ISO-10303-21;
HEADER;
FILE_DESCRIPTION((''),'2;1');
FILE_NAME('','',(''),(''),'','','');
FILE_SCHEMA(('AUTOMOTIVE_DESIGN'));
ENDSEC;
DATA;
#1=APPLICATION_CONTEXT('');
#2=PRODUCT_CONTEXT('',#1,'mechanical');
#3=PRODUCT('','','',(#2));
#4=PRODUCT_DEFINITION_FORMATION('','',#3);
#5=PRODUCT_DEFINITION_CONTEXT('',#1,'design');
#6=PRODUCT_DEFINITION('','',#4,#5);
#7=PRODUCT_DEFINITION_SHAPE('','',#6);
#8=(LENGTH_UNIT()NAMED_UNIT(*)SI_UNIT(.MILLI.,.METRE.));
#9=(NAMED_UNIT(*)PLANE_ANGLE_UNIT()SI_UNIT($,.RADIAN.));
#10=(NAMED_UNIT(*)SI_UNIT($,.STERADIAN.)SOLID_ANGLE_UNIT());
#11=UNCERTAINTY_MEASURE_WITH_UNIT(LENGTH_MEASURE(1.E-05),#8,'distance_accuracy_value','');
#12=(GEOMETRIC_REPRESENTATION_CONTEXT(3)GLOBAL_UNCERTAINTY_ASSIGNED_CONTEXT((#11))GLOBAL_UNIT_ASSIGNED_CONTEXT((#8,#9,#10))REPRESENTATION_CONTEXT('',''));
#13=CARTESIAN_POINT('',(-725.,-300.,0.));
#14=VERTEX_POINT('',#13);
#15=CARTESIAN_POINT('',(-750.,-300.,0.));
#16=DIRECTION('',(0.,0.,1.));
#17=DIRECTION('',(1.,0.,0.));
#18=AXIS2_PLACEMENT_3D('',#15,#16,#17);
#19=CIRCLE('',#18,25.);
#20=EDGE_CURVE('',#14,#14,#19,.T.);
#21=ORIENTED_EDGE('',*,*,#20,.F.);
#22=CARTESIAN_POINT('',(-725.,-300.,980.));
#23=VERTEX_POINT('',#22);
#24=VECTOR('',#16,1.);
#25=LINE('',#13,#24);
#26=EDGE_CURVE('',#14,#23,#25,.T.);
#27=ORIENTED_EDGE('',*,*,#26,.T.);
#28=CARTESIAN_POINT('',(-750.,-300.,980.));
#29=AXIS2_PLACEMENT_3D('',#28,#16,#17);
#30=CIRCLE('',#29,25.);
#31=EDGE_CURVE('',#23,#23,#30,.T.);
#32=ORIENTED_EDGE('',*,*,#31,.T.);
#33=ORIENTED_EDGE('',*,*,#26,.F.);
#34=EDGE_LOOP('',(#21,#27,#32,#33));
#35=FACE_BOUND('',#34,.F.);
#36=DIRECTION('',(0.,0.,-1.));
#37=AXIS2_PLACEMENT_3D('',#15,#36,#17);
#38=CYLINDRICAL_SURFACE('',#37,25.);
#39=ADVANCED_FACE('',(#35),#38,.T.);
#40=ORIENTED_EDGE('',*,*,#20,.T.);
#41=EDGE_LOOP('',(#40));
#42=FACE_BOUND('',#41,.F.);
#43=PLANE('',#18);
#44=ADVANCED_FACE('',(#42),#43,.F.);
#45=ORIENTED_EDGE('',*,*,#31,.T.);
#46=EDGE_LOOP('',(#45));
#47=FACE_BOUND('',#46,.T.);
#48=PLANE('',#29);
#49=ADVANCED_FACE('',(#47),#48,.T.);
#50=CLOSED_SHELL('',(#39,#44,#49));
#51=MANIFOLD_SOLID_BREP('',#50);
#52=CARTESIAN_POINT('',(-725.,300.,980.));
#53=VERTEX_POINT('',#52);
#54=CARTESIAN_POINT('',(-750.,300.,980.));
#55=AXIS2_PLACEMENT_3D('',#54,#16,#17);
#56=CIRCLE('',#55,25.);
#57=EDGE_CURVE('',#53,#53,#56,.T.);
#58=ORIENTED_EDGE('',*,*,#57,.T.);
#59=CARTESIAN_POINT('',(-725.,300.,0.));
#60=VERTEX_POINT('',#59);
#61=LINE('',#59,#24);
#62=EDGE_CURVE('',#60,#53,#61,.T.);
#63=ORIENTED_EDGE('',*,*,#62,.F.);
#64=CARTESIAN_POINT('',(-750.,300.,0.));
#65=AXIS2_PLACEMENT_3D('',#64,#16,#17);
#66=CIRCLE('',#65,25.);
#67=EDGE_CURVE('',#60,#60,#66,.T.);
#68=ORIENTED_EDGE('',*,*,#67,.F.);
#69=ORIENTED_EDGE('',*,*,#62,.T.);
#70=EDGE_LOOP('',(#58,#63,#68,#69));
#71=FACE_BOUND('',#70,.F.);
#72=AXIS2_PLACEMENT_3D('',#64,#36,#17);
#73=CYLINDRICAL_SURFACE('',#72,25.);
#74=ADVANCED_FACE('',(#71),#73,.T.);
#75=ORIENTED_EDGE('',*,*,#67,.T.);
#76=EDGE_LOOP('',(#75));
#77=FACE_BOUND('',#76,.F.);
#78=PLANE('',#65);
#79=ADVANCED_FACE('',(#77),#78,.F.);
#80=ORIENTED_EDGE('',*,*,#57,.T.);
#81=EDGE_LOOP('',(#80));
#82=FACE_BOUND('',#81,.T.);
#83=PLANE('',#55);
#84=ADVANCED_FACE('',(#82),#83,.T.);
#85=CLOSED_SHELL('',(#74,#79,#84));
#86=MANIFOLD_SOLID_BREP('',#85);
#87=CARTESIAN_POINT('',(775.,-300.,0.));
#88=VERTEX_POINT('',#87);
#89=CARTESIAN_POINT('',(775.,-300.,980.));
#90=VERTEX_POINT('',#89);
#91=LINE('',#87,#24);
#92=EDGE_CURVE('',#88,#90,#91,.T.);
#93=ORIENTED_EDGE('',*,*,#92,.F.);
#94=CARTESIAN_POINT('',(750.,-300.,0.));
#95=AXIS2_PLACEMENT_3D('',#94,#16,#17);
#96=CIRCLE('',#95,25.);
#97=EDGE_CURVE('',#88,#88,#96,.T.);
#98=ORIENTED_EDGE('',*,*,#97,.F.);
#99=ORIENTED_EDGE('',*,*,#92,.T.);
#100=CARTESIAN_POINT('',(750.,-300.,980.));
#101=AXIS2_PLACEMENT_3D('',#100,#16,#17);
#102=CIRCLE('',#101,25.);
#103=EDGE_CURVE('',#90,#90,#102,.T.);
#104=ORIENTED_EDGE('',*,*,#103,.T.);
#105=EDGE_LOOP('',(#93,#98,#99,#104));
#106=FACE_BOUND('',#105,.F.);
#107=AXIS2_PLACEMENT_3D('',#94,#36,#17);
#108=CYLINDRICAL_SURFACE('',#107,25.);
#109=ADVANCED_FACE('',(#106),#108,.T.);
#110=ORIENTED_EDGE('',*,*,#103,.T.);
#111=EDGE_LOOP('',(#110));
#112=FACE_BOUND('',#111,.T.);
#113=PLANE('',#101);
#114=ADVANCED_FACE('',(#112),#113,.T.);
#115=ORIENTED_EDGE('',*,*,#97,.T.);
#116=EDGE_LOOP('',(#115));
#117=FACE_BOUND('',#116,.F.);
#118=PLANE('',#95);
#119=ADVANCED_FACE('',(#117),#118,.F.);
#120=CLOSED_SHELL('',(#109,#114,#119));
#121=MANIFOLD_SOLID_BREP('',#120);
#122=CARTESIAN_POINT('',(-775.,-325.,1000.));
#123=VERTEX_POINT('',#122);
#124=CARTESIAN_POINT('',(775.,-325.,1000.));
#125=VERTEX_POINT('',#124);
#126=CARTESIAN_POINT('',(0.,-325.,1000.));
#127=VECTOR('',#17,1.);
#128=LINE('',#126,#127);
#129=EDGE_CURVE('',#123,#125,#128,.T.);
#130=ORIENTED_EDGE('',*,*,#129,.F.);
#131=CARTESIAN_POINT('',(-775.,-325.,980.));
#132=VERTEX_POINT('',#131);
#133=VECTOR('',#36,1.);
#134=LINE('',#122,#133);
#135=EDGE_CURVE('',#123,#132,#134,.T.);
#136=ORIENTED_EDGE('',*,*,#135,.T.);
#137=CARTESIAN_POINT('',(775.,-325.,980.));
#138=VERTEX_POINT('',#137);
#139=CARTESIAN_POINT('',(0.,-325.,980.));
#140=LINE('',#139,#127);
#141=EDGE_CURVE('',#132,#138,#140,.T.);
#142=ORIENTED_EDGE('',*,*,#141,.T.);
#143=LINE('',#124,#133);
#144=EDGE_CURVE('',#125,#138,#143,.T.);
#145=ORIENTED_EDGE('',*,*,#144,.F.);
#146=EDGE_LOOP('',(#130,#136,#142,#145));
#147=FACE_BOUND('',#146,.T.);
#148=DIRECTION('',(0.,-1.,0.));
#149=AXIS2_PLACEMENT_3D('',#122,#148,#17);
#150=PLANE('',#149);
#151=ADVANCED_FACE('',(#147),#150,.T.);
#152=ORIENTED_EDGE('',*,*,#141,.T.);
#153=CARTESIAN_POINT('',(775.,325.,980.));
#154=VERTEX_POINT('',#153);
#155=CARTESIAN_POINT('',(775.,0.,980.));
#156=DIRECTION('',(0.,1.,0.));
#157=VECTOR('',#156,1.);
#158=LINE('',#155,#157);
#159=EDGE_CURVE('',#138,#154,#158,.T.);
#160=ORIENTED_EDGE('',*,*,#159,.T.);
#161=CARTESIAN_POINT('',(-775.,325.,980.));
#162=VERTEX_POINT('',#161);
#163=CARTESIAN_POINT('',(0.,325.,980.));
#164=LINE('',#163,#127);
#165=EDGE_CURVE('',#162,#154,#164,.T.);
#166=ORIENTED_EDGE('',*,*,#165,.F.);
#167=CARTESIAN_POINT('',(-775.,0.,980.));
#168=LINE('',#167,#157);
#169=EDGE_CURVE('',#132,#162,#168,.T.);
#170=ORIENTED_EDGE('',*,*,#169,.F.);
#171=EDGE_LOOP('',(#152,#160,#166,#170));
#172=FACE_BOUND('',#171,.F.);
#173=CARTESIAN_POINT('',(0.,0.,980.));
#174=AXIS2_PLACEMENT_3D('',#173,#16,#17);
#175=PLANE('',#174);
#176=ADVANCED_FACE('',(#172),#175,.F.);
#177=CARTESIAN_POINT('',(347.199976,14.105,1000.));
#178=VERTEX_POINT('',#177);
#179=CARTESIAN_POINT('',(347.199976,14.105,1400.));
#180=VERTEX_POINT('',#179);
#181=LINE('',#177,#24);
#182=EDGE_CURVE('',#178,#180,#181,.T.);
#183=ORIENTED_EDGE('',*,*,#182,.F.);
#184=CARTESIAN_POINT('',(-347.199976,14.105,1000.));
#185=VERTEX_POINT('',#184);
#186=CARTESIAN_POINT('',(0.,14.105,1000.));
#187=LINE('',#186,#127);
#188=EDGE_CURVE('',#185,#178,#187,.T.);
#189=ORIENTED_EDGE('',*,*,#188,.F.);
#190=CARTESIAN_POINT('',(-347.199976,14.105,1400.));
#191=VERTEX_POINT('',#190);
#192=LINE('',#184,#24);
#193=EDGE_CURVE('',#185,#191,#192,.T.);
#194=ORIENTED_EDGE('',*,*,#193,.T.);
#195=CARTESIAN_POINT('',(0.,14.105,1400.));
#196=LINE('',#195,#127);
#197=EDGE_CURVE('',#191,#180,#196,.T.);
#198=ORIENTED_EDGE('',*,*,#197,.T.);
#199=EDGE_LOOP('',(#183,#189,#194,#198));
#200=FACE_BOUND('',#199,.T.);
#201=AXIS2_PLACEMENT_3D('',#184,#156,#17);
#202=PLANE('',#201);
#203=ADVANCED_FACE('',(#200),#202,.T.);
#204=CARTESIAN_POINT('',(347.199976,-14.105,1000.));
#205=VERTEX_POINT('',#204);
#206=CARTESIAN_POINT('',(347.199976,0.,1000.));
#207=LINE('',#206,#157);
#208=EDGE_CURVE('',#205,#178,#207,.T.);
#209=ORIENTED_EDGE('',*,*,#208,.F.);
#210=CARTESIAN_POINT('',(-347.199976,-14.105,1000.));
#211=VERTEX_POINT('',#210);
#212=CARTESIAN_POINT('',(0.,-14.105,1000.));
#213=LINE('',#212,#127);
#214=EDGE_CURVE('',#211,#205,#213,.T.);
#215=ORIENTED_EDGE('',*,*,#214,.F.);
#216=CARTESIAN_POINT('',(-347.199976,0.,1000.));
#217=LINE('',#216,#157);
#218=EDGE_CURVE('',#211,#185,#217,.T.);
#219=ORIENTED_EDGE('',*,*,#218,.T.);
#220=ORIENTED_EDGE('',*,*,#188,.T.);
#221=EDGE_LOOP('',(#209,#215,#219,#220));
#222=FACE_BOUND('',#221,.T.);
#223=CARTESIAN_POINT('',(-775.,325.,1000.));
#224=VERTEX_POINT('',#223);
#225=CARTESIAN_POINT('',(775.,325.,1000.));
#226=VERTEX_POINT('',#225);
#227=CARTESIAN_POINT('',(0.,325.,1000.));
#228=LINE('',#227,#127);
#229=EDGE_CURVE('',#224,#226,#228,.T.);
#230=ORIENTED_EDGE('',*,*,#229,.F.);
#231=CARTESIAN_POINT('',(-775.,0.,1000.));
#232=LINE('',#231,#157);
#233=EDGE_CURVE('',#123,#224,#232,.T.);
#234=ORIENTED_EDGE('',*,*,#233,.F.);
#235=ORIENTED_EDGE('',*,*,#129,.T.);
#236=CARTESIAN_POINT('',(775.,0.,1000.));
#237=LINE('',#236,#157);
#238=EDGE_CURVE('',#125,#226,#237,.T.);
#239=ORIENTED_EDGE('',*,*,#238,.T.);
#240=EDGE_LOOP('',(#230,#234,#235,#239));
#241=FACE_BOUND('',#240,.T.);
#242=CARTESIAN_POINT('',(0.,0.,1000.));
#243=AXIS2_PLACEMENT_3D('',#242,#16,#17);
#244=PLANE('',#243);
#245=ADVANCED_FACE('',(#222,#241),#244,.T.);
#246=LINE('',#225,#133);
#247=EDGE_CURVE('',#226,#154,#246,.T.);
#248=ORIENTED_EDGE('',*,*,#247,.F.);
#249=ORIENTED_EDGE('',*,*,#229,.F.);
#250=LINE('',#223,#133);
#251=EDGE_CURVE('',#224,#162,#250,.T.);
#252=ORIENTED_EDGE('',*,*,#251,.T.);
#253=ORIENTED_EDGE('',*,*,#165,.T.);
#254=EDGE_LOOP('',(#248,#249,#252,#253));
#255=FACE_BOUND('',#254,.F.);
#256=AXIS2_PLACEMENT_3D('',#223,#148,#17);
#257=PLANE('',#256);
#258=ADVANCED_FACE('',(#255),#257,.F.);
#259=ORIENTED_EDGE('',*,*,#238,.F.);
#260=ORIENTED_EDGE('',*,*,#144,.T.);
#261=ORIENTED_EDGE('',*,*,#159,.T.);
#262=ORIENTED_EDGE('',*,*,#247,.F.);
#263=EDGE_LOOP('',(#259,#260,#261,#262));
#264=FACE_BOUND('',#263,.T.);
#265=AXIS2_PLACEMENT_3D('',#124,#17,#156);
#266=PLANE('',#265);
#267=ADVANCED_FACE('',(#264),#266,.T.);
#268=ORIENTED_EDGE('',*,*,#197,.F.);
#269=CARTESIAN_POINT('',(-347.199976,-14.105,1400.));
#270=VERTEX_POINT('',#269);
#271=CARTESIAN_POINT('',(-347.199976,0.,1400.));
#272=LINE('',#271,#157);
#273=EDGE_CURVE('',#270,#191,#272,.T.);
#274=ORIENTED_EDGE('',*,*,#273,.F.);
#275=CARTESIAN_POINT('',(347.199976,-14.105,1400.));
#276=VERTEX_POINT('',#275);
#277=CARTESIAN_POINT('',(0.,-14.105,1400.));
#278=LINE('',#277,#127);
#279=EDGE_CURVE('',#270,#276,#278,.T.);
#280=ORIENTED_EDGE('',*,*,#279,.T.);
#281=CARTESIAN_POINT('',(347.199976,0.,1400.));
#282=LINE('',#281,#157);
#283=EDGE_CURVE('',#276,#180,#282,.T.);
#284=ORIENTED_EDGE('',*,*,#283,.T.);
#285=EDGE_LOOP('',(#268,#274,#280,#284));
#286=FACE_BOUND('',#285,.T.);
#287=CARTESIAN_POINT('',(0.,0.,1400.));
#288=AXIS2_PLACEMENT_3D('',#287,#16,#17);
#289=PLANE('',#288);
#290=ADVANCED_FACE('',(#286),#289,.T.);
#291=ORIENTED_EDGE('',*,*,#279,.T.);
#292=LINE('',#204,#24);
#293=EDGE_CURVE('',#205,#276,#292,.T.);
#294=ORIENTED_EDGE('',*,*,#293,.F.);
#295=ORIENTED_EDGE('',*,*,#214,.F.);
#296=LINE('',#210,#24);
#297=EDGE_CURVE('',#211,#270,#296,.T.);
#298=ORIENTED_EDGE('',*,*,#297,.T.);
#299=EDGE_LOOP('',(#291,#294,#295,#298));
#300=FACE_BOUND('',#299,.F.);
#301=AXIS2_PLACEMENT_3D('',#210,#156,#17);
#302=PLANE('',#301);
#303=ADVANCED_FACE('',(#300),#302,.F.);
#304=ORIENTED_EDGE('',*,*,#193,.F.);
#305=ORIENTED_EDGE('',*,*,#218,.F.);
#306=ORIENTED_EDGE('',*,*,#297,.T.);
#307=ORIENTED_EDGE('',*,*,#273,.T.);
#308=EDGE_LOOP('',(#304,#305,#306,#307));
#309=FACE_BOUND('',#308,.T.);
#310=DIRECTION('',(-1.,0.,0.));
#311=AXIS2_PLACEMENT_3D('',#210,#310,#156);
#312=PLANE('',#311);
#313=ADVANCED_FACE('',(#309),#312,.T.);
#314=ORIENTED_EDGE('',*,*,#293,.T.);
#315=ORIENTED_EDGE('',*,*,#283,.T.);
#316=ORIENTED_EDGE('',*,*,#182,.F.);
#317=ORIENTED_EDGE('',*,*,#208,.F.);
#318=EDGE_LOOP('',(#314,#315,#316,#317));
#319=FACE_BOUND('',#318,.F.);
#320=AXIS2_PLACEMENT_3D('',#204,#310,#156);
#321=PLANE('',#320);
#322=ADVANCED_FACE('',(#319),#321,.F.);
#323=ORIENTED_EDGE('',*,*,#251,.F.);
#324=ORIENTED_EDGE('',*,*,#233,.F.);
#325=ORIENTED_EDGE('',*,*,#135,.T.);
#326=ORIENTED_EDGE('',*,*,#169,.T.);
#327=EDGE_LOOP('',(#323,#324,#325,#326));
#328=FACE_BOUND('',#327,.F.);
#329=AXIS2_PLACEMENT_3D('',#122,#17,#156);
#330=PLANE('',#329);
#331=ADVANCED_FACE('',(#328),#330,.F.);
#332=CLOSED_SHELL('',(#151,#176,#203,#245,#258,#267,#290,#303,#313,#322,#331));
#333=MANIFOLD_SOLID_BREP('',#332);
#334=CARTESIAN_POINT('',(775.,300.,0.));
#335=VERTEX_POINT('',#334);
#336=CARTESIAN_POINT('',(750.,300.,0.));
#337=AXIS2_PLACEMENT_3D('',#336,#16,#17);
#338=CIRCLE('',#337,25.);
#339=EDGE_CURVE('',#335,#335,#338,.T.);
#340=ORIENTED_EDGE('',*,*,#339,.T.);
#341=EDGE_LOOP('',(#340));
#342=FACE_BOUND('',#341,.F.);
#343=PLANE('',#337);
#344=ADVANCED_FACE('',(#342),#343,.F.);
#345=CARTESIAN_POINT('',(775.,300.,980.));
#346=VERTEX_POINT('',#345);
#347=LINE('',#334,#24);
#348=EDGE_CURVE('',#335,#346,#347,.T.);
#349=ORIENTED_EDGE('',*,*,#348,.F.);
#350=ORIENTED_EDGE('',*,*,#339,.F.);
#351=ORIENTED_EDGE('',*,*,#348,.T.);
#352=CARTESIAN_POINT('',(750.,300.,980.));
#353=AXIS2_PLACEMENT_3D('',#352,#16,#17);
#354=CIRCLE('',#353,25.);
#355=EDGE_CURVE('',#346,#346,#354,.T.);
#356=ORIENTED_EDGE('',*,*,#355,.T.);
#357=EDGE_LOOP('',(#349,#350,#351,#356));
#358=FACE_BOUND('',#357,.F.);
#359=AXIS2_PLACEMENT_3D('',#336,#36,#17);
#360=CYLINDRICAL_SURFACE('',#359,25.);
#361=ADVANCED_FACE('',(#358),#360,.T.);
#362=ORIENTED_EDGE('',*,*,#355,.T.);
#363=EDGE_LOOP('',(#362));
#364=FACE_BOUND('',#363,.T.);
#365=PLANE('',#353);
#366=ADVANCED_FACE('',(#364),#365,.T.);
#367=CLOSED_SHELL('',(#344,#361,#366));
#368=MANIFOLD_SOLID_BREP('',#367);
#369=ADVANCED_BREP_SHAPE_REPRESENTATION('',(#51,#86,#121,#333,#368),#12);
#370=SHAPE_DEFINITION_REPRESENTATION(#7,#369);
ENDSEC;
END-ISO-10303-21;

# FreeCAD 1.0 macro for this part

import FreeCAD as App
import Part
import Sketcher


def add_polygon(sketch, points):
    """Adds a closed chain of lines whose ends are joined by coincident constraints."""
    first, n = sketch.GeometryCount, len(points)
    for a, b in zip(points, points[1:] + points[:1]):
        sketch.addGeometry(Part.LineSegment(App.Vector(*a, 0), App.Vector(*b, 0)), False)
    for i in range(n):
        sketch.addConstraint(Sketcher.Constraint("Coincident", first + i, 2, first + (i + 1) % n, 1))

doc = App.newDocument("Part")
body = doc.addObject("PartDesign::Body", "Body")
body.AllowCompound = True

sketch1 = body.newObject("Sketcher::SketchObject", "Sketch")
sketch1.AttachmentSupport = (doc.getObject("XY_Plane"), [""])
sketch1.MapMode = "FlatFace"
sketch1.addGeometry([
    Part.Circle(App.Vector(-750, 300, 0), App.Vector(0, 0, 1), 25),
    Part.Circle(App.Vector(-750, -300, 0), App.Vector(0, 0, 1), 25),
    Part.Circle(App.Vector(750, -300, 0), App.Vector(0, 0, 1), 25),
    Part.Circle(App.Vector(750, 300, 0), App.Vector(0, 0, 1), 25),
], False)
sketch1.addConstraint([
    Sketcher.Constraint("Equal", 0, 1),
    Sketcher.Constraint("Equal", 1, 2),
    Sketcher.Constraint("Equal", 2, 3),
    Sketcher.Constraint("Symmetric", 0, 3, 2, 3, -1, 1),
    Sketcher.Constraint("Symmetric", 1, 3, 3, 3, -1, 1),
    Sketcher.Constraint("Symmetric", 1, 3, 2, 3, -2),
    Sketcher.Constraint("Diameter", 0, 50.0),
    Sketcher.Constraint("DistanceX", 0, 3, -1, 1, 750.0),
    Sketcher.Constraint("DistanceY", -1, 1, 0, 3, 300.0),
])
pad1 = body.newObject("PartDesign::Pad", "Pad")
pad1.Profile = sketch1
pad1.Length = 980
body2 = doc.addObject("PartDesign::Body", "Body001")

sketch2 = body2.newObject("Sketcher::SketchObject", "Sketch001")
sketch2.AttachmentSupport = (doc.getObject("XY_Plane001"), [""])
sketch2.MapMode = "FlatFace"
sketch2.AttachmentOffset = App.Placement(App.Vector(0, 0, 1000), App.Rotation())
add_polygon(sketch2, [(-775, 325), (-775, -325), (775, -325), (775, 325)])
sketch2.addConstraint([
    Sketcher.Constraint("Vertical", 0),
    Sketcher.Constraint("Horizontal", 1),
    Sketcher.Constraint("Vertical", 2),
    Sketcher.Constraint("Horizontal", 3),
    Sketcher.Constraint("Symmetric", 0, 2, 2, 2, -1, 1),
    Sketcher.Constraint("DistanceX", 1, 1, 1, 2, 1550.0),
    Sketcher.Constraint("DistanceY", 0, 2, 0, 1, 650.0),
])
pad2 = body2.newObject("PartDesign::Pad", "Pad001")
pad2.Profile = sketch2
pad2.Length = 20
pad2.Reversed = True

sketch3 = body2.newObject("Sketcher::SketchObject", "Sketch002")
sketch3.AttachmentSupport = (doc.getObject("XY_Plane001"), [""])
sketch3.MapMode = "FlatFace"
sketch3.AttachmentOffset = App.Placement(App.Vector(0, 0, 1000), App.Rotation())
add_polygon(sketch3, [(-347.199976, 14.105), (-347.199976, -14.105), (347.199976, -14.105), (347.199976, 14.105)])
sketch3.addConstraint([
    Sketcher.Constraint("Vertical", 0),
    Sketcher.Constraint("Horizontal", 1),
    Sketcher.Constraint("Vertical", 2),
    Sketcher.Constraint("Horizontal", 3),
    Sketcher.Constraint("Symmetric", 0, 2, 2, 2, -1, 1),
    Sketcher.Constraint("DistanceY", 0, 2, 0, 1, 28.21),
    Sketcher.Constraint("DistanceX", 1, 1, 1, 2, 694.399952),
])
pad3 = body2.newObject("PartDesign::Pad", "Pad002")
pad3.Profile = sketch3
pad3.Length = 400

doc.recompute()
